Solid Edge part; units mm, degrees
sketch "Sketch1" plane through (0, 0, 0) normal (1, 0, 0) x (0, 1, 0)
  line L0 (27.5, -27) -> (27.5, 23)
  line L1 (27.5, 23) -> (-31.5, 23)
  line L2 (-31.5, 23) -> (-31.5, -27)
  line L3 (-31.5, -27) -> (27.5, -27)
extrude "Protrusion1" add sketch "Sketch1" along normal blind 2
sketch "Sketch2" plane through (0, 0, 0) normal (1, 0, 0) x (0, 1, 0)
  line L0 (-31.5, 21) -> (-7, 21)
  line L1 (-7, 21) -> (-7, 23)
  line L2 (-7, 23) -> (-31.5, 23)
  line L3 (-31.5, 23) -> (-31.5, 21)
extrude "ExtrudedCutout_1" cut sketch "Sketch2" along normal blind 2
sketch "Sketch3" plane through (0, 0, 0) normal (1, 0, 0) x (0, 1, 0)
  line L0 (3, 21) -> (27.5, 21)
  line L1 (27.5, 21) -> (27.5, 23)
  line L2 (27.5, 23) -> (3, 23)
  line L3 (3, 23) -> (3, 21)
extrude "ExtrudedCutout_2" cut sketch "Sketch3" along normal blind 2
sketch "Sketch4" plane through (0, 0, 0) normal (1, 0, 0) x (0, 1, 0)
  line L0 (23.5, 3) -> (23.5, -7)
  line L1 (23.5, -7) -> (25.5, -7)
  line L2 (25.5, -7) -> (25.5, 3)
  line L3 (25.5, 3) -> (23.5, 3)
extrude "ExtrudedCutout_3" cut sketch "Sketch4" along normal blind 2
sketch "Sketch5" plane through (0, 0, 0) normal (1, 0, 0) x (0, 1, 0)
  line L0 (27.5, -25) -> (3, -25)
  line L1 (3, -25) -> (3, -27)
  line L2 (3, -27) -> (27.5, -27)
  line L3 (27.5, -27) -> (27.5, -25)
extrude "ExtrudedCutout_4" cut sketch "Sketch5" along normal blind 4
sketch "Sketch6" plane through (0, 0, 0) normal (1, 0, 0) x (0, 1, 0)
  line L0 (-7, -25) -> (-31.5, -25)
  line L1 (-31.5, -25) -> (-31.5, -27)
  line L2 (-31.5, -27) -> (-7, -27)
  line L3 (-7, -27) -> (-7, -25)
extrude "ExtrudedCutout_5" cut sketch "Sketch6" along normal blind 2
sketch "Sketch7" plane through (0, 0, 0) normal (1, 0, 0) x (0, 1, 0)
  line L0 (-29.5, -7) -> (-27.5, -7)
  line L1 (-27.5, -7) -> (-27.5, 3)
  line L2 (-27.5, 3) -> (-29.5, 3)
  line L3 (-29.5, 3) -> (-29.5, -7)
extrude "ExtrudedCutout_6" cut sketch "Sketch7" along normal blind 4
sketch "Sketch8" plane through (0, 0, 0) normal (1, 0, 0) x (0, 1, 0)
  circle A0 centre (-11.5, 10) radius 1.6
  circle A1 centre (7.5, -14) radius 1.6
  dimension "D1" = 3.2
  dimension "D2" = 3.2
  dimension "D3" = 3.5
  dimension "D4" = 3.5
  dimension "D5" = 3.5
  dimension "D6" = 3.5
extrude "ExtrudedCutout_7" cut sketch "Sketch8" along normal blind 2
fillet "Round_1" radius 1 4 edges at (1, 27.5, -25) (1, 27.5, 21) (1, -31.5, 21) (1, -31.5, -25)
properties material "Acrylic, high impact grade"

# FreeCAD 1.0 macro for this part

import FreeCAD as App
import Part
import Sketcher

V = App.Vector
Q = App.Units.Quantity


def edges_at(feature, points):
    """Names of the edges that pass closest to the given points."""
    edges = feature.Shape.Edges
    near = lambda p: min(range(len(edges)), key=lambda i: edges[i].distToShape(Part.Vertex(*p))[0])
    return sorted({f"Edge{near(p) + 1}" for p in points})

doc = App.newDocument("Part")
body = doc.addObject("PartDesign::Body", "Body")

# Sketch on YZ plane
sketch1 = body.newObject("Sketcher::SketchObject", "Sketch")
sketch1.AttachmentSupport = (doc.getObject("YZ_Plane"), [""])
sketch1.MapMode = "FlatFace"
sketch1.addGeometry([
    Part.LineSegment(V(-32, -27, 0), V(28, -27, 0)),
    Part.LineSegment(V(28, -27, 0), V(28, 23, 0)),
    Part.LineSegment(V(28, 23, 0), V(-32, 23, 0)),
    Part.LineSegment(V(-32, 23, 0), V(-32, -27, 0)),
], False)
sketch1.addConstraint([
    Sketcher.Constraint("Coincident", 0, 2, 1, 1),
    Sketcher.Constraint("Coincident", 1, 2, 2, 1),
    Sketcher.Constraint("Coincident", 2, 2, 3, 1),
    Sketcher.Constraint("Coincident", 3, 2, 0, 1),
    Sketcher.Constraint("Horizontal", 0),
    Sketcher.Constraint("Vertical", 1),
    Sketcher.Constraint("Horizontal", 2),
    Sketcher.Constraint("Vertical", 3),
    Sketcher.Constraint("DistanceX", 0, 1, 0, 2, Q("59 mm")),
    Sketcher.Constraint("DistanceY", 1, 1, 1, 2, Q("50 mm")),
    Sketcher.Constraint("DistanceY", 0, 2, -1, 1, Q("27 mm")),
    Sketcher.Constraint("DistanceX", -1, 1, 0, 2, Q("27.5 mm")),
])
pad1 = body.newObject("PartDesign::Pad", "Pad")
pad1.Profile = sketch1
pad1.Length = 2

# Sketch on YZ plane
sketch2 = body.newObject("Sketcher::SketchObject", "Sketch001")
sketch2.AttachmentSupport = (doc.getObject("YZ_Plane"), [""])
sketch2.MapMode = "FlatFace"
sketch2.addGeometry([
    Part.LineSegment(V(-31.5, 23, 0), V(-31.5, 21, 0)),
    Part.LineSegment(V(-31.5, 21, 0), V(-7, 21, 0)),
    Part.LineSegment(V(-7, 21, 0), V(-7, 23, 0)),
    Part.LineSegment(V(-7, 23, 0), V(-31.5, 23, 0)),
], False)
sketch2.addConstraint([
    Sketcher.Constraint("Coincident", 0, 2, 1, 1),
    Sketcher.Constraint("Coincident", 1, 2, 2, 1),
    Sketcher.Constraint("Coincident", 2, 2, 3, 1),
    Sketcher.Constraint("Coincident", 3, 2, 0, 1),
    Sketcher.Constraint("Vertical", 0),
    Sketcher.Constraint("Horizontal", 1),
    Sketcher.Constraint("Vertical", 2),
    Sketcher.Constraint("Horizontal", 3),
    Sketcher.Constraint("DistanceY", 0, 2, 0, 1, Q("2 mm")),
    Sketcher.Constraint("DistanceX", 1, 1, 1, 2, Q("24.5 mm")),
    Sketcher.Constraint("DistanceY", -1, 1, 0, 2, Q("21 mm")),
    Sketcher.Constraint("DistanceX", 1, 2, -1, 1, Q("7 mm")),
])
pocket1 = body.newObject("PartDesign::Pocket", "Pocket")
pocket1.Profile = sketch2
pocket1.Length = 2
pocket1.Reversed = True

# Sketch on YZ plane
sketch3 = body.newObject("Sketcher::SketchObject", "Sketch002")
sketch3.AttachmentSupport = (doc.getObject("YZ_Plane"), [""])
sketch3.MapMode = "FlatFace"
sketch3.addGeometry([
    Part.LineSegment(V(3, 23, 0), V(3, 21, 0)),
    Part.LineSegment(V(3, 21, 0), V(27.5, 21, 0)),
    Part.LineSegment(V(27.5, 21, 0), V(27.5, 23, 0)),
    Part.LineSegment(V(27.5, 23, 0), V(3, 23, 0)),
], False)
sketch3.addConstraint([
    Sketcher.Constraint("Coincident", 0, 2, 1, 1),
    Sketcher.Constraint("Coincident", 1, 2, 2, 1),
    Sketcher.Constraint("Coincident", 2, 2, 3, 1),
    Sketcher.Constraint("Coincident", 3, 2, 0, 1),
    Sketcher.Constraint("Vertical", 0),
    Sketcher.Constraint("Horizontal", 1),
    Sketcher.Constraint("Vertical", 2),
    Sketcher.Constraint("Horizontal", 3),
    Sketcher.Constraint("DistanceY", 0, 2, 0, 1, Q("2 mm")),
    Sketcher.Constraint("DistanceX", 1, 1, 1, 2, Q("24.5 mm")),
    Sketcher.Constraint("DistanceX", -1, 1, 0, 2, Q("3 mm")),
    Sketcher.Constraint("DistanceY", -1, 1, 0, 2, Q("21 mm")),
])
pocket2 = body.newObject("PartDesign::Pocket", "Pocket001")
pocket2.Profile = sketch3
pocket2.Length = 2
pocket2.Reversed = True

# Sketch on YZ plane
sketch4 = body.newObject("Sketcher::SketchObject", "Sketch003")
sketch4.AttachmentSupport = (doc.getObject("YZ_Plane"), [""])
sketch4.MapMode = "FlatFace"
sketch4.addGeometry([
    Part.LineSegment(V(25.5, 3, 0), V(23.5, 3, 0)),
    Part.LineSegment(V(23.5, 3, 0), V(23.5, -7, 0)),
    Part.LineSegment(V(23.5, -7, 0), V(25.5, -7, 0)),
    Part.LineSegment(V(25.5, -7, 0), V(25.5, 3, 0)),
], False)
sketch4.addConstraint([
    Sketcher.Constraint("Coincident", 0, 2, 1, 1),
    Sketcher.Constraint("Coincident", 1, 2, 2, 1),
    Sketcher.Constraint("Coincident", 2, 2, 3, 1),
    Sketcher.Constraint("Coincident", 3, 2, 0, 1),
    Sketcher.Constraint("Horizontal", 0),
    Sketcher.Constraint("Vertical", 1),
    Sketcher.Constraint("Horizontal", 2),
    Sketcher.Constraint("Vertical", 3),
    Sketcher.Constraint("DistanceX", 0, 2, 0, 1, Q("2 mm")),
    Sketcher.Constraint("DistanceY", 1, 2, 1, 1, Q("10 mm")),
    Sketcher.Constraint("DistanceY", -1, 1, 0, 2, Q("3 mm")),
    Sketcher.Constraint("DistanceX", -1, 1, 0, 2, Q("23.5 mm")),
])
pocket3 = body.newObject("PartDesign::Pocket", "Pocket002")
pocket3.Profile = sketch4
pocket3.Length = 2
pocket3.Reversed = True

# Sketch on YZ plane
sketch5 = body.newObject("Sketcher::SketchObject", "Sketch004")
sketch5.AttachmentSupport = (doc.getObject("YZ_Plane"), [""])
sketch5.MapMode = "FlatFace"
sketch5.addGeometry([
    Part.LineSegment(V(27.5, -27, 0), V(27.5, -25, 0)),
    Part.LineSegment(V(27.5, -25, 0), V(3, -25, 0)),
    Part.LineSegment(V(3, -25, 0), V(3, -27, 0)),
    Part.LineSegment(V(3, -27, 0), V(27.5, -27, 0)),
], False)
sketch5.addConstraint([
    Sketcher.Constraint("Coincident", 0, 2, 1, 1),
    Sketcher.Constraint("Coincident", 1, 2, 2, 1),
    Sketcher.Constraint("Coincident", 2, 2, 3, 1),
    Sketcher.Constraint("Coincident", 3, 2, 0, 1),
    Sketcher.Constraint("Vertical", 0),
    Sketcher.Constraint("Horizontal", 1),
    Sketcher.Constraint("Vertical", 2),
    Sketcher.Constraint("Horizontal", 3),
    Sketcher.Constraint("DistanceY", 0, 1, 0, 2, Q("2 mm")),
    Sketcher.Constraint("DistanceX", 1, 2, 1, 1, Q("24.5 mm")),
    Sketcher.Constraint("DistanceY", 0, 2, -1, 1, Q("25 mm")),
    Sketcher.Constraint("DistanceX", -1, 1, 1, 2, Q("3 mm")),
])
pocket4 = body.newObject("PartDesign::Pocket", "Pocket003")
pocket4.Profile = sketch5
pocket4.Length = 4
pocket4.Reversed = True

# Sketch on YZ plane
sketch6 = body.newObject("Sketcher::SketchObject", "Sketch005")
sketch6.AttachmentSupport = (doc.getObject("YZ_Plane"), [""])
sketch6.MapMode = "FlatFace"
sketch6.addGeometry([
    Part.LineSegment(V(-7, -27, 0), V(-7, -25, 0)),
    Part.LineSegment(V(-7, -25, 0), V(-31.5, -25, 0)),
    Part.LineSegment(V(-31.5, -25, 0), V(-31.5, -27, 0)),
    Part.LineSegment(V(-31.5, -27, 0), V(-7, -27, 0)),
], False)
sketch6.addConstraint([
    Sketcher.Constraint("Coincident", 0, 2, 1, 1),
    Sketcher.Constraint("Coincident", 1, 2, 2, 1),
    Sketcher.Constraint("Coincident", 2, 2, 3, 1),
    Sketcher.Constraint("Coincident", 3, 2, 0, 1),
    Sketcher.Constraint("Vertical", 0),
    Sketcher.Constraint("Horizontal", 1),
    Sketcher.Constraint("Vertical", 2),
    Sketcher.Constraint("Horizontal", 3),
    Sketcher.Constraint("DistanceY", 0, 1, 0, 2, Q("2 mm")),
    Sketcher.Constraint("DistanceX", 1, 2, 1, 1, Q("24.5 mm")),
    Sketcher.Constraint("DistanceX", 0, 2, -1, 1, Q("7 mm")),
    Sketcher.Constraint("DistanceY", 0, 2, -1, 1, Q("25 mm")),
])
pocket5 = body.newObject("PartDesign::Pocket", "Pocket004")
pocket5.Profile = sketch6
pocket5.Length = 2
pocket5.Reversed = True

# Sketch on YZ plane
sketch7 = body.newObject("Sketcher::SketchObject", "Sketch006")
sketch7.AttachmentSupport = (doc.getObject("YZ_Plane"), [""])
sketch7.MapMode = "FlatFace"
sketch7.addGeometry([
    Part.LineSegment(V(-29.5, 3, 0), V(-29.5, -7, 0)),
    Part.LineSegment(V(-29.5, -7, 0), V(-27.5, -7, 0)),
    Part.LineSegment(V(-27.5, -7, 0), V(-27.5, 3, 0)),
    Part.LineSegment(V(-27.5, 3, 0), V(-29.5, 3, 0)),
], False)
sketch7.addConstraint([
    Sketcher.Constraint("Coincident", 0, 2, 1, 1),
    Sketcher.Constraint("Coincident", 1, 2, 2, 1),
    Sketcher.Constraint("Coincident", 2, 2, 3, 1),
    Sketcher.Constraint("Coincident", 3, 2, 0, 1),
    Sketcher.Constraint("Vertical", 0),
    Sketcher.Constraint("Horizontal", 1),
    Sketcher.Constraint("Vertical", 2),
    Sketcher.Constraint("Horizontal", 3),
    Sketcher.Constraint("DistanceX", 1, 1, 1, 2, Q("2 mm")),
    Sketcher.Constraint("DistanceY", 0, 2, 0, 1, Q("10 mm")),
    Sketcher.Constraint("DistanceY", 0, 2, -1, 1, Q("7 mm")),
    Sketcher.Constraint("DistanceX", 0, 2, -1, 1, Q("29.5 mm")),
])
pocket6 = body.newObject("PartDesign::Pocket", "Pocket005")
pocket6.Profile = sketch7
pocket6.Length = 4
pocket6.Reversed = True

# Sketch on YZ plane
sketch8 = body.newObject("Sketcher::SketchObject", "Sketch007")
sketch8.AttachmentSupport = (doc.getObject("YZ_Plane"), [""])
sketch8.MapMode = "FlatFace"
sketch8.addGeometry([
    Part.Circle(V(-11.5, 10, 0), V(0, 0, 1), 1.6),
    Part.Circle(V(7.5, -14, 0), V(0, 0, 1), 1.6),
], False)
sketch8.addConstraint([
    Sketcher.Constraint("Equal", 0, 1),
    Sketcher.Constraint("Diameter", 0, Q("3.2 mm")),
    Sketcher.Constraint("DistanceY", -1, 1, 0, 3, Q("10 mm")),
    Sketcher.Constraint("DistanceY", 1, 3, -1, 1, Q("14 mm")),
    Sketcher.Constraint("DistanceX", 0, 3, 1, 3, Q("19 mm")),
    Sketcher.Constraint("DistanceX", 0, 3, -1, 1, Q("11.5 mm")),
])
pocket7 = body.newObject("PartDesign::Pocket", "Pocket006")
pocket7.Profile = sketch8
pocket7.Length = 2
pocket7.Reversed = True
doc.recompute()

fillet = body.newObject("PartDesign::Fillet", "Fillet")
fillet.Base = (pocket7, edges_at(pocket7, [
    (1, 27.5, -25),
    (1, 27.5, 21),
    (1, -31.5, 21),
    (1, -31.5, -25),
]))
fillet.Radius = 1

doc.recompute()
